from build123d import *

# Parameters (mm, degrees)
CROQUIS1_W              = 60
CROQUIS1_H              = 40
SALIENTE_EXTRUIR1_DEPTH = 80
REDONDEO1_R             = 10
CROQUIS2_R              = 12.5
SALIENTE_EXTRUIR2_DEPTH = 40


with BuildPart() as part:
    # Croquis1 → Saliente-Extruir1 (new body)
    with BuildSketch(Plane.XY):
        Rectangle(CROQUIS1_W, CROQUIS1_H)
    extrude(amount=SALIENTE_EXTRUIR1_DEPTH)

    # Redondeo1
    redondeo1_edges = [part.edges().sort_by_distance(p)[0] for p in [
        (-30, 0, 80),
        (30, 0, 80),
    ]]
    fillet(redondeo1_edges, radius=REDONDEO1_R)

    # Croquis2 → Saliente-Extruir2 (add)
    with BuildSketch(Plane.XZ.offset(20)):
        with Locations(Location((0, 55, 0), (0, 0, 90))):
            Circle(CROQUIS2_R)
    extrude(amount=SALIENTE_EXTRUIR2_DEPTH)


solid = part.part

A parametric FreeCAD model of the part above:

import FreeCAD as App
import Part
import Sketcher
Q = App.Units.Quantity


def edges_at(feature, points):
    """Names of the edges that pass closest to the given points."""
    edges = feature.Shape.Edges
    near = lambda p: min(range(len(edges)), key=lambda i: edges[i].distToShape(Part.Vertex(*p))[0])
    return sorted({f"Edge{near(p) + 1}" for p in points})


def add_polygon(sketch, points):
    """Adds a closed chain of lines whose ends are joined by coincident constraints."""
    first, n = sketch.GeometryCount, len(points)
    for a, b in zip(points, points[1:] + points[:1]):
        sketch.addGeometry(Part.LineSegment(App.Vector(*a, 0), App.Vector(*b, 0)), False)
    for i in range(n):
        sketch.addConstraint(Sketcher.Constraint("Coincident", first + i, 2, first + (i + 1) % n, 1))

doc = App.newDocument("Part")
body = doc.addObject("PartDesign::Body", "Body")

# Sketch on XY plane
sketch1 = doc.addObject("Sketcher::SketchObject", "Sketch")
body.addObject(sketch1)
sketch1.AttachmentSupport = (doc.XY_Plane, [""])
sketch1.MapMode = "FlatFace"
add_polygon(sketch1, [(-30, 20), (-30, -20), (30, -20), (30, 20)])  # lines 0-3
sketch1.addConstraint(Sketcher.Constraint("Vertical", 0))
sketch1.addConstraint(Sketcher.Constraint("Horizontal", 1))
sketch1.addConstraint(Sketcher.Constraint("Vertical", 2))
sketch1.addConstraint(Sketcher.Constraint("Horizontal", 3))
sketch1.addConstraint(Sketcher.Constraint("Symmetric", 0, 2, 2, 2, -1, 1))
sketch1.addConstraint(Sketcher.Constraint("DistanceX", 1, 1, 1, 2, Q("60 mm")))
sketch1.addConstraint(Sketcher.Constraint("DistanceY", 0, 2, 0, 1, Q("40 mm")))
pad1 = doc.addObject("PartDesign::Pad", "Pad")
body.addObject(pad1)
pad1.Profile = sketch1
pad1.Length = 80
doc.recompute()

fillet = doc.addObject("PartDesign::Fillet", "Fillet")
body.addObject(fillet)
fillet.Base = (pad1, edges_at(pad1, [(-30, 0, 80), (30, 0, 80)]))
fillet.Radius = 10

# Sketch on XZ plane
sketch2 = doc.addObject("Sketcher::SketchObject", "Sketch001")
body.addObject(sketch2)
sketch2.AttachmentSupport = (doc.XZ_Plane, [""])
sketch2.MapMode = "FlatFace"
sketch2.AttachmentOffset = App.Placement(App.Vector(0, 0, 20), App.Rotation())
sketch2.addGeometry(Part.Circle(App.Vector(0, 55, 0), App.Vector(0, 0, 1), 12), False)
sketch2.addConstraint(Sketcher.Constraint("PointOnObject", 0, 3, -2))
sketch2.addConstraint(Sketcher.Constraint("Diameter", 0, Q("25 mm")))
sketch2.addConstraint(Sketcher.Constraint("DistanceY", -1, 1, 0, 3, Q("55 mm")))
pad2 = doc.addObject("PartDesign::Pad", "Pad001")
body.addObject(pad2)
pad2.Profile = sketch2
pad2.Length = 40

doc.recompute()
